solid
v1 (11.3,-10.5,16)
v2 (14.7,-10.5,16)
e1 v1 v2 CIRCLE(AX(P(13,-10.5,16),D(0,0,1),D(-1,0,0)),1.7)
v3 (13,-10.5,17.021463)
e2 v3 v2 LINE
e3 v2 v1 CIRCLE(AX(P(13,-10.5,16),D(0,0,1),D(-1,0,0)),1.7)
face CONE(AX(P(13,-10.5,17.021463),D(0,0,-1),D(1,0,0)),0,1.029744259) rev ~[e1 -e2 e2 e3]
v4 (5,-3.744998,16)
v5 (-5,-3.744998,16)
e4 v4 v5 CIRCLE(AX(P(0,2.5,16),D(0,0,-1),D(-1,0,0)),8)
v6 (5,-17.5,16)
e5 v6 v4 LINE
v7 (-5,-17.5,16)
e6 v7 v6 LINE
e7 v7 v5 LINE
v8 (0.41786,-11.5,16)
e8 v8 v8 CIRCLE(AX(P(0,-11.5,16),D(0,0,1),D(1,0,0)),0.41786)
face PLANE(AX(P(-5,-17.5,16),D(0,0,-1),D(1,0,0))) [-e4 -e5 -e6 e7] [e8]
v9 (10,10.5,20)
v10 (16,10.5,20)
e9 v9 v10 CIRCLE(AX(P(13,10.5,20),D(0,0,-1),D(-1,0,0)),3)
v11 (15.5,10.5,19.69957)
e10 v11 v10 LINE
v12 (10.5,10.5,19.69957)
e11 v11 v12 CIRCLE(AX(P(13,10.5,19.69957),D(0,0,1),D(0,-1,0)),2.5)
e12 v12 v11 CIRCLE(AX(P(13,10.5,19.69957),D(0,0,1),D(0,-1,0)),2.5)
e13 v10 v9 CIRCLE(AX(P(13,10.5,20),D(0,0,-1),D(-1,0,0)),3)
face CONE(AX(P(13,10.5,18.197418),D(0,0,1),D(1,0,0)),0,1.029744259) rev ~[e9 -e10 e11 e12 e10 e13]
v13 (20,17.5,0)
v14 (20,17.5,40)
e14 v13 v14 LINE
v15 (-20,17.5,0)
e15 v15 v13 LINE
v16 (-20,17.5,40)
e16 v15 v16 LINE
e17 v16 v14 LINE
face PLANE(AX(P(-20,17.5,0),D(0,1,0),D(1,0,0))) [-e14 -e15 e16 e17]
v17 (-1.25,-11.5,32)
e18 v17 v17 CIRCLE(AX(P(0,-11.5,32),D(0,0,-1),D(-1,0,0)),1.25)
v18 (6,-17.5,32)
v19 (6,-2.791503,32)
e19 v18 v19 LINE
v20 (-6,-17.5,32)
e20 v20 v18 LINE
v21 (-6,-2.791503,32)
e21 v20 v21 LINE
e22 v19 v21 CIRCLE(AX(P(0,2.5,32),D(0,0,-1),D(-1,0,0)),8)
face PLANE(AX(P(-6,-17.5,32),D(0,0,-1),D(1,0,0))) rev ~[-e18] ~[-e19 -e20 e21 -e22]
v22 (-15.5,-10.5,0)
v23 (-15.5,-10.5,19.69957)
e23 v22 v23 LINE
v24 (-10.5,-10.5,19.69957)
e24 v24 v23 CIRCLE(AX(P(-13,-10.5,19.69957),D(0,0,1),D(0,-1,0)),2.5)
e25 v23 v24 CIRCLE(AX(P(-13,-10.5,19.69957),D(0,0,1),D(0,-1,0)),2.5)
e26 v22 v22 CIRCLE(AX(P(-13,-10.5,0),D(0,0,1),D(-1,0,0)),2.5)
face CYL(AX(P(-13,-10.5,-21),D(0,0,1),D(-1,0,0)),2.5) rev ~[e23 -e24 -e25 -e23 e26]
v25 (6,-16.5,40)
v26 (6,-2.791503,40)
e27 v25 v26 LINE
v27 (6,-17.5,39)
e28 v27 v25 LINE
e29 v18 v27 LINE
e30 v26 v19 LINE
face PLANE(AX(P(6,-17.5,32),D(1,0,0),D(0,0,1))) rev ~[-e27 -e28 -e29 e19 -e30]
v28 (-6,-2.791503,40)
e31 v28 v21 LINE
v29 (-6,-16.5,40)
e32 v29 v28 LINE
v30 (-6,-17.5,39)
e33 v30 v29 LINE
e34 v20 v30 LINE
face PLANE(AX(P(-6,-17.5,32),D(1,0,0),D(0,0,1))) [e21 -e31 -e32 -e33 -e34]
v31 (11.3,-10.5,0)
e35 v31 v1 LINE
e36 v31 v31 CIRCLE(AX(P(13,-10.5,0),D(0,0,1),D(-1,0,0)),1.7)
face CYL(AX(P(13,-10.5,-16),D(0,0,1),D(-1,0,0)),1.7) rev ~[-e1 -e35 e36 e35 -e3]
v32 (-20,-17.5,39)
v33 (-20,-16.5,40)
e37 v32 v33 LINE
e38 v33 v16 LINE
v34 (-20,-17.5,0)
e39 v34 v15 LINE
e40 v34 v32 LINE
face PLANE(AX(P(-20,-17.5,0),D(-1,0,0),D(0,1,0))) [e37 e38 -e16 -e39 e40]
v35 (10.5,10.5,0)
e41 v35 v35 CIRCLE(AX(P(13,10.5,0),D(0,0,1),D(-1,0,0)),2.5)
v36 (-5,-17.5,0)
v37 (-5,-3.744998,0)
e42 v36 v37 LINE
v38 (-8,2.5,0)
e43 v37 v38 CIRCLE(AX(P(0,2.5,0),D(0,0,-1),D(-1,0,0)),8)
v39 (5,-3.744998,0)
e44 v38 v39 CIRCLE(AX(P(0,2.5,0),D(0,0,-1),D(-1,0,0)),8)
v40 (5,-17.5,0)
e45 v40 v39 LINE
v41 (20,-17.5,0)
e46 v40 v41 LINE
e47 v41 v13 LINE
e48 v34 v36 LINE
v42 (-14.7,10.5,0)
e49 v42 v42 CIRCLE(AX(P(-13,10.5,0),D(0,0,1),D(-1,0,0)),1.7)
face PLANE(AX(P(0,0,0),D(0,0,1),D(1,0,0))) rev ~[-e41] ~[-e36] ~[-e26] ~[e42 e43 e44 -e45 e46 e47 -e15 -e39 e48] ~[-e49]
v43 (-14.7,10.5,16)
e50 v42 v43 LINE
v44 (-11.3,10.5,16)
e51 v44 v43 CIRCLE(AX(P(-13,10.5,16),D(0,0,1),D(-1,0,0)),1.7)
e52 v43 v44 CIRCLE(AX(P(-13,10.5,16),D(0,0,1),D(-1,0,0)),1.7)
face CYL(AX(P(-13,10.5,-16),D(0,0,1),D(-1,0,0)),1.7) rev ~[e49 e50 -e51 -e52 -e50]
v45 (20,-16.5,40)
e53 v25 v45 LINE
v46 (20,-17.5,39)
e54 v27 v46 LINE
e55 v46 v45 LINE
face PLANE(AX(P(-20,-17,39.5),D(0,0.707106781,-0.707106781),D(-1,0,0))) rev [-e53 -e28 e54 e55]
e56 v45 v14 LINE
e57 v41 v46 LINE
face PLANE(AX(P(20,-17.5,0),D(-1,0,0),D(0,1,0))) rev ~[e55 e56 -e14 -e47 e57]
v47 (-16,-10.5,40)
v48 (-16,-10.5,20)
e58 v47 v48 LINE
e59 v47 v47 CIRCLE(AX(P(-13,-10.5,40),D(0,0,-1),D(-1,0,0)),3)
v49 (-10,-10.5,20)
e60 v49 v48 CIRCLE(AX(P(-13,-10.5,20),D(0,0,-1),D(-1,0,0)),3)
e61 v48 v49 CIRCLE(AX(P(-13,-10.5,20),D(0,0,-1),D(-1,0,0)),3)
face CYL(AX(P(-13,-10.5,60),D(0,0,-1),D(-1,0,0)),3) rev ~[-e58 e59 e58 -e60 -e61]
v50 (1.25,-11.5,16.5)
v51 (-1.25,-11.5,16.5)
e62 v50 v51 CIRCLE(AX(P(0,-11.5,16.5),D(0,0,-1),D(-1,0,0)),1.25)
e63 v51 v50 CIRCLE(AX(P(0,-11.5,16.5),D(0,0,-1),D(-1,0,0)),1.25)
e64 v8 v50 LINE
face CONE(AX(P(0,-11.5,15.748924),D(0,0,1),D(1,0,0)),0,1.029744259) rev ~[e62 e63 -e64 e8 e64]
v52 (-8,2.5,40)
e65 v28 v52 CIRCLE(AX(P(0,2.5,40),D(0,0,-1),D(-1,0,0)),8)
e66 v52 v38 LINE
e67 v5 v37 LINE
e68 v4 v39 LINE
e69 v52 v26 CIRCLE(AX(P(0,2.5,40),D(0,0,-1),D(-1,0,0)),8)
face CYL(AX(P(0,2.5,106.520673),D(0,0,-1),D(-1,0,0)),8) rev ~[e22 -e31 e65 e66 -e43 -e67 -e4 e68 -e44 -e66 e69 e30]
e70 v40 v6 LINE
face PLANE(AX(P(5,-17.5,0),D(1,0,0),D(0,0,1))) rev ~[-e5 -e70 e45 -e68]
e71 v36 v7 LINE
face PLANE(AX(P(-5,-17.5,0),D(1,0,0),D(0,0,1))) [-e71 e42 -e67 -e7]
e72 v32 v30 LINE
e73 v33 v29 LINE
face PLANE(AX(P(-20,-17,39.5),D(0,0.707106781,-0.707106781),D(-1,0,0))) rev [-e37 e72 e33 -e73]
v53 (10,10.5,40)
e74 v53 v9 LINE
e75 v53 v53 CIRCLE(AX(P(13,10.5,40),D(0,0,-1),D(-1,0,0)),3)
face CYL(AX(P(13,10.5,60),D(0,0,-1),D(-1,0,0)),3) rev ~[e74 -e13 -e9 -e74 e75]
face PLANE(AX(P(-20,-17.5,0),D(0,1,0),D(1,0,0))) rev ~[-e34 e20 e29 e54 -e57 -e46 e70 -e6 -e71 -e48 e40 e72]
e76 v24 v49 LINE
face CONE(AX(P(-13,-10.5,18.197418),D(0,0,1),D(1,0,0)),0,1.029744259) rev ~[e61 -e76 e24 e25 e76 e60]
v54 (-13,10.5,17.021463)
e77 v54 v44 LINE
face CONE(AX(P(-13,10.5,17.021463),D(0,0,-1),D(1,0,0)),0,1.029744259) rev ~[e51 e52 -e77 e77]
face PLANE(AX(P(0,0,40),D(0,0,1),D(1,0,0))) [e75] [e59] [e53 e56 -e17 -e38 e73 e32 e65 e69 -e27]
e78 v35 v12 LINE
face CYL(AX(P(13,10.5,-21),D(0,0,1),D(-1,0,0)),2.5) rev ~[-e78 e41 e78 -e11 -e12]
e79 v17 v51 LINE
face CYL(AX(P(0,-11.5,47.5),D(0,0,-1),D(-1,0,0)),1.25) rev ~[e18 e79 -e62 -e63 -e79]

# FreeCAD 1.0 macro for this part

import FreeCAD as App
import Part
import Sketcher

V = App.Vector


def edges_at(feature, points):
    """Names of the edges that pass closest to the given points."""
    edges = feature.Shape.Edges
    near = lambda p: min(range(len(edges)), key=lambda i: edges[i].distToShape(Part.Vertex(*p))[0])
    return sorted({f"Edge{near(p) + 1}" for p in points})


def add_polygon(sketch, points):
    """Adds a closed chain of lines whose ends are joined by coincident constraints."""
    first, n = sketch.GeometryCount, len(points)
    for a, b in zip(points, points[1:] + points[:1]):
        sketch.addGeometry(Part.LineSegment(App.Vector(*a, 0), App.Vector(*b, 0)), False)
    for i in range(n):
        sketch.addConstraint(Sketcher.Constraint("Coincident", first + i, 2, first + (i + 1) % n, 1))

doc = App.newDocument("Part")
body = doc.addObject("PartDesign::Body", "Body")

# Sketch on XY plane
sketch1 = body.newObject("Sketcher::SketchObject", "Sketch")
sketch1.AttachmentSupport = (doc.getObject("XY_Plane"), [""])
sketch1.MapMode = "FlatFace"
add_polygon(sketch1, [(-20, 18), (-20, -18), (20, -18), (20, 18)])  # lines 0-3
sketch1.addConstraint([
    Sketcher.Constraint("Vertical", 0),
    Sketcher.Constraint("Horizontal", 1),
    Sketcher.Constraint("Vertical", 2),
    Sketcher.Constraint("Horizontal", 3),
    Sketcher.Constraint("Symmetric", 0, 2, 2, 2, -1, 1),
    Sketcher.Constraint("DistanceX", 1, 1, 1, 2, 40.0),
    Sketcher.Constraint("DistanceY", 0, 2, 0, 1, 35.0),
])
pad1 = body.newObject("PartDesign::Pad", "Pad")
pad1.Profile = sketch1
pad1.Length = 40
doc.recompute()

chamfer = body.newObject("PartDesign::Chamfer", "Chamfer")
chamfer.Base = (pad1, edges_at(pad1, [(0, -17.5, 40)]))
chamfer.Size = 1

# Sketch on XY plane
sketch2 = body.newObject("Sketcher::SketchObject", "Sketch001")
sketch2.AttachmentSupport = (doc.getObject("XY_Plane"), [""])
sketch2.MapMode = "FlatFace"
sketch2.AttachmentOffset = App.Placement(V(0, 0, 40), App.Rotation())
sketch2.addGeometry(Part.Circle(V(0, 2, 0), V(0, 0, 1), 8), False)
sketch2.addConstraint([
    Sketcher.Constraint("PointOnObject", 0, 3, -2),
    Sketcher.Constraint("Diameter", 0, 16.0),
    Sketcher.Constraint("DistanceY", -1, 1, 0, 3, 2.5),
])
doc.recompute()
hole = body.newObject("PartDesign::Hole", "Hole")
hole.Profile = sketch2
hole.ThreadType = "None"
hole.Diameter = 16
hole.DepthType = "ThroughAll"

# Sketch on XZ plane
sketch3 = body.newObject("Sketcher::SketchObject", "Sketch002")
sketch3.AttachmentSupport = (doc.getObject("XZ_Plane"), [""])
sketch3.MapMode = "FlatFace"
sketch3.AttachmentOffset = App.Placement(V(0, 0, 17.5), App.Rotation())
add_polygon(sketch3, [(-6, 40), (-6, 32), (6, 32), (6, 40)])  # lines 0-3
sketch3.addConstraint([
    Sketcher.Constraint("Vertical", 0),
    Sketcher.Constraint("Horizontal", 1),
    Sketcher.Constraint("Vertical", 2),
    Sketcher.Constraint("Horizontal", 3),
    Sketcher.Constraint("DistanceX", 1, 1, 1, 2, 12.0),
    Sketcher.Constraint("DistanceY", 0, 2, 0, 1, 8.0),
    Sketcher.Constraint("DistanceX", 0, 2, -1, 1, 6.0),
    Sketcher.Constraint("DistanceY", -1, 1, 0, 2, 32.0),
])
pocket1 = body.newObject("PartDesign::Pocket", "Pocket")
pocket1.Profile = sketch3
pocket1.Length = 25

# Sketch on XZ plane
sketch4 = body.newObject("Sketcher::SketchObject", "Sketch003")
sketch4.AttachmentSupport = (doc.getObject("XZ_Plane"), [""])
sketch4.MapMode = "FlatFace"
sketch4.AttachmentOffset = App.Placement(V(0, 0, 17.5), App.Rotation())
add_polygon(sketch4, [(-5, 16), (-5, 0), (5, 0), (5, 16)])  # lines 0-3
sketch4.addConstraint([
    Sketcher.Constraint("Vertical", 0),
    Sketcher.Constraint("Horizontal", 1),
    Sketcher.Constraint("Vertical", 2),
    Sketcher.Constraint("Horizontal", 3),
    Sketcher.Constraint("Symmetric", 0, 2, 1, 2, -1, 1),
    Sketcher.Constraint("DistanceX", 1, 1, 1, 2, 10.0),
    Sketcher.Constraint("DistanceY", 0, 2, 0, 1, 16.0),
])
pocket2 = body.newObject("PartDesign::Pocket", "Pocket001")
pocket2.Profile = sketch4
pocket2.Length = 13.756002

# Sketch on XY plane
sketch5 = body.newObject("Sketcher::SketchObject", "Sketch004")
sketch5.AttachmentSupport = (doc.getObject("XY_Plane"), [""])
sketch5.MapMode = "FlatFace"
sketch5.AttachmentOffset = App.Placement(V(0, 0, 40), App.Rotation())
sketch5.addGeometry([
    Part.Circle(V(13, 10.5, 0), V(0, 0, 1), 3),
    Part.Circle(V(-13, -10.5, 0), V(0, 0, 1), 3),
], False)
sketch5.addConstraint([
    Sketcher.Constraint("Equal", 0, 1),
    Sketcher.Constraint("Symmetric", 0, 3, 1, 3, -1, 1),
    Sketcher.Constraint("Diameter", 0, 6.0),
    Sketcher.Constraint("DistanceX", -1, 1, 0, 3, 13.0),
    Sketcher.Constraint("DistanceY", 1, 3, 0, 3, 21.0),
])
doc.recompute()
hole2 = body.newObject("PartDesign::Hole", "Hole001")
hole2.Profile = sketch5
hole2.ThreadType = "None"
hole2.Diameter = 6
hole2.DepthType = "Dimension"
hole2.Depth = 20
hole2.DrillPoint = "Angled"
hole2.DrillPointAngle = 118

# Sketch on XY plane
sketch6 = body.newObject("Sketcher::SketchObject", "Sketch005")
sketch6.AttachmentSupport = (doc.getObject("XY_Plane"), [""])
sketch6.MapMode = "FlatFace"
sketch6.addGeometry([
    Part.Circle(V(-13, 10.5, 0), V(0, 0, 1), 1.7),
    Part.Circle(V(13, -10.5, 0), V(0, 0, 1), 1.7),
], False)
sketch6.addConstraint([
    Sketcher.Constraint("Equal", 0, 1),
    Sketcher.Constraint("Symmetric", 0, 3, 1, 3, -1, 1),
    Sketcher.Constraint("Diameter", 0, 3.4),
    Sketcher.Constraint("DistanceX", 0, 3, -1, 1, 13.0),
    Sketcher.Constraint("DistanceY", 1, 3, 0, 3, 21.0),
])
doc.recompute()
hole3 = body.newObject("PartDesign::Hole", "Hole002")
hole3.Profile = sketch6
hole3.ThreadType = "None"
hole3.Diameter = 3.4
hole3.DepthType = "Dimension"
hole3.Depth = 16
hole3.DrillPoint = "Angled"
hole3.DrillPointAngle = 118
hole3.Reversed = True

# Sketch on XY plane
sketch7 = body.newObject("Sketcher::SketchObject", "Sketch006")
sketch7.AttachmentSupport = (doc.getObject("XY_Plane"), [""])
sketch7.MapMode = "FlatFace"
sketch7.addGeometry([
    Part.Circle(V(-13, -10.5, 0), V(0, 0, 1), 2.5),
    Part.Circle(V(13, 10.5, 0), V(0, 0, 1), 2.5),
], False)
sketch7.addConstraint([
    Sketcher.Constraint("Equal", 0, 1),
    Sketcher.Constraint("Symmetric", 0, 3, 1, 3, -1, 1),
    Sketcher.Constraint("Diameter", 0, 5.0),
    Sketcher.Constraint("DistanceX", 0, 3, -1, 1, 13.0),
    Sketcher.Constraint("DistanceY", 0, 3, 1, 3, 21.0),
])
doc.recompute()
hole4 = body.newObject("PartDesign::Hole", "Hole003")
hole4.Profile = sketch7
hole4.ThreadType = "None"
hole4.Diameter = 5
hole4.DepthType = "Dimension"
hole4.Depth = 21
hole4.DrillPoint = "Angled"
hole4.DrillPointAngle = 118
hole4.Reversed = True

# Sketch on XY plane
sketch8 = body.newObject("Sketcher::SketchObject", "Sketch007")
sketch8.AttachmentSupport = (doc.getObject("XY_Plane"), [""])
sketch8.MapMode = "FlatFace"
sketch8.AttachmentOffset = App.Placement(V(0, 0, 32), App.Rotation())
sketch8.addGeometry(Part.Circle(V(0, -11.5, 0), V(0, 0, 1), 1.2), False)
sketch8.addConstraint([
    Sketcher.Constraint("PointOnObject", 0, 3, -2),
    Sketcher.Constraint("Diameter", 0, 2.5),
    Sketcher.Constraint("DistanceY", 0, 3, -1, 1, 11.5),
])
doc.recompute()
hole5 = body.newObject("PartDesign::Hole", "Hole004")
hole5.Profile = sketch8
hole5.ThreadType = "None"
hole5.Diameter = 2.5
hole5.DepthType = "Dimension"
hole5.Depth = 15.5
hole5.DrillPoint = "Angled"
hole5.DrillPointAngle = 118

doc.recompute()
